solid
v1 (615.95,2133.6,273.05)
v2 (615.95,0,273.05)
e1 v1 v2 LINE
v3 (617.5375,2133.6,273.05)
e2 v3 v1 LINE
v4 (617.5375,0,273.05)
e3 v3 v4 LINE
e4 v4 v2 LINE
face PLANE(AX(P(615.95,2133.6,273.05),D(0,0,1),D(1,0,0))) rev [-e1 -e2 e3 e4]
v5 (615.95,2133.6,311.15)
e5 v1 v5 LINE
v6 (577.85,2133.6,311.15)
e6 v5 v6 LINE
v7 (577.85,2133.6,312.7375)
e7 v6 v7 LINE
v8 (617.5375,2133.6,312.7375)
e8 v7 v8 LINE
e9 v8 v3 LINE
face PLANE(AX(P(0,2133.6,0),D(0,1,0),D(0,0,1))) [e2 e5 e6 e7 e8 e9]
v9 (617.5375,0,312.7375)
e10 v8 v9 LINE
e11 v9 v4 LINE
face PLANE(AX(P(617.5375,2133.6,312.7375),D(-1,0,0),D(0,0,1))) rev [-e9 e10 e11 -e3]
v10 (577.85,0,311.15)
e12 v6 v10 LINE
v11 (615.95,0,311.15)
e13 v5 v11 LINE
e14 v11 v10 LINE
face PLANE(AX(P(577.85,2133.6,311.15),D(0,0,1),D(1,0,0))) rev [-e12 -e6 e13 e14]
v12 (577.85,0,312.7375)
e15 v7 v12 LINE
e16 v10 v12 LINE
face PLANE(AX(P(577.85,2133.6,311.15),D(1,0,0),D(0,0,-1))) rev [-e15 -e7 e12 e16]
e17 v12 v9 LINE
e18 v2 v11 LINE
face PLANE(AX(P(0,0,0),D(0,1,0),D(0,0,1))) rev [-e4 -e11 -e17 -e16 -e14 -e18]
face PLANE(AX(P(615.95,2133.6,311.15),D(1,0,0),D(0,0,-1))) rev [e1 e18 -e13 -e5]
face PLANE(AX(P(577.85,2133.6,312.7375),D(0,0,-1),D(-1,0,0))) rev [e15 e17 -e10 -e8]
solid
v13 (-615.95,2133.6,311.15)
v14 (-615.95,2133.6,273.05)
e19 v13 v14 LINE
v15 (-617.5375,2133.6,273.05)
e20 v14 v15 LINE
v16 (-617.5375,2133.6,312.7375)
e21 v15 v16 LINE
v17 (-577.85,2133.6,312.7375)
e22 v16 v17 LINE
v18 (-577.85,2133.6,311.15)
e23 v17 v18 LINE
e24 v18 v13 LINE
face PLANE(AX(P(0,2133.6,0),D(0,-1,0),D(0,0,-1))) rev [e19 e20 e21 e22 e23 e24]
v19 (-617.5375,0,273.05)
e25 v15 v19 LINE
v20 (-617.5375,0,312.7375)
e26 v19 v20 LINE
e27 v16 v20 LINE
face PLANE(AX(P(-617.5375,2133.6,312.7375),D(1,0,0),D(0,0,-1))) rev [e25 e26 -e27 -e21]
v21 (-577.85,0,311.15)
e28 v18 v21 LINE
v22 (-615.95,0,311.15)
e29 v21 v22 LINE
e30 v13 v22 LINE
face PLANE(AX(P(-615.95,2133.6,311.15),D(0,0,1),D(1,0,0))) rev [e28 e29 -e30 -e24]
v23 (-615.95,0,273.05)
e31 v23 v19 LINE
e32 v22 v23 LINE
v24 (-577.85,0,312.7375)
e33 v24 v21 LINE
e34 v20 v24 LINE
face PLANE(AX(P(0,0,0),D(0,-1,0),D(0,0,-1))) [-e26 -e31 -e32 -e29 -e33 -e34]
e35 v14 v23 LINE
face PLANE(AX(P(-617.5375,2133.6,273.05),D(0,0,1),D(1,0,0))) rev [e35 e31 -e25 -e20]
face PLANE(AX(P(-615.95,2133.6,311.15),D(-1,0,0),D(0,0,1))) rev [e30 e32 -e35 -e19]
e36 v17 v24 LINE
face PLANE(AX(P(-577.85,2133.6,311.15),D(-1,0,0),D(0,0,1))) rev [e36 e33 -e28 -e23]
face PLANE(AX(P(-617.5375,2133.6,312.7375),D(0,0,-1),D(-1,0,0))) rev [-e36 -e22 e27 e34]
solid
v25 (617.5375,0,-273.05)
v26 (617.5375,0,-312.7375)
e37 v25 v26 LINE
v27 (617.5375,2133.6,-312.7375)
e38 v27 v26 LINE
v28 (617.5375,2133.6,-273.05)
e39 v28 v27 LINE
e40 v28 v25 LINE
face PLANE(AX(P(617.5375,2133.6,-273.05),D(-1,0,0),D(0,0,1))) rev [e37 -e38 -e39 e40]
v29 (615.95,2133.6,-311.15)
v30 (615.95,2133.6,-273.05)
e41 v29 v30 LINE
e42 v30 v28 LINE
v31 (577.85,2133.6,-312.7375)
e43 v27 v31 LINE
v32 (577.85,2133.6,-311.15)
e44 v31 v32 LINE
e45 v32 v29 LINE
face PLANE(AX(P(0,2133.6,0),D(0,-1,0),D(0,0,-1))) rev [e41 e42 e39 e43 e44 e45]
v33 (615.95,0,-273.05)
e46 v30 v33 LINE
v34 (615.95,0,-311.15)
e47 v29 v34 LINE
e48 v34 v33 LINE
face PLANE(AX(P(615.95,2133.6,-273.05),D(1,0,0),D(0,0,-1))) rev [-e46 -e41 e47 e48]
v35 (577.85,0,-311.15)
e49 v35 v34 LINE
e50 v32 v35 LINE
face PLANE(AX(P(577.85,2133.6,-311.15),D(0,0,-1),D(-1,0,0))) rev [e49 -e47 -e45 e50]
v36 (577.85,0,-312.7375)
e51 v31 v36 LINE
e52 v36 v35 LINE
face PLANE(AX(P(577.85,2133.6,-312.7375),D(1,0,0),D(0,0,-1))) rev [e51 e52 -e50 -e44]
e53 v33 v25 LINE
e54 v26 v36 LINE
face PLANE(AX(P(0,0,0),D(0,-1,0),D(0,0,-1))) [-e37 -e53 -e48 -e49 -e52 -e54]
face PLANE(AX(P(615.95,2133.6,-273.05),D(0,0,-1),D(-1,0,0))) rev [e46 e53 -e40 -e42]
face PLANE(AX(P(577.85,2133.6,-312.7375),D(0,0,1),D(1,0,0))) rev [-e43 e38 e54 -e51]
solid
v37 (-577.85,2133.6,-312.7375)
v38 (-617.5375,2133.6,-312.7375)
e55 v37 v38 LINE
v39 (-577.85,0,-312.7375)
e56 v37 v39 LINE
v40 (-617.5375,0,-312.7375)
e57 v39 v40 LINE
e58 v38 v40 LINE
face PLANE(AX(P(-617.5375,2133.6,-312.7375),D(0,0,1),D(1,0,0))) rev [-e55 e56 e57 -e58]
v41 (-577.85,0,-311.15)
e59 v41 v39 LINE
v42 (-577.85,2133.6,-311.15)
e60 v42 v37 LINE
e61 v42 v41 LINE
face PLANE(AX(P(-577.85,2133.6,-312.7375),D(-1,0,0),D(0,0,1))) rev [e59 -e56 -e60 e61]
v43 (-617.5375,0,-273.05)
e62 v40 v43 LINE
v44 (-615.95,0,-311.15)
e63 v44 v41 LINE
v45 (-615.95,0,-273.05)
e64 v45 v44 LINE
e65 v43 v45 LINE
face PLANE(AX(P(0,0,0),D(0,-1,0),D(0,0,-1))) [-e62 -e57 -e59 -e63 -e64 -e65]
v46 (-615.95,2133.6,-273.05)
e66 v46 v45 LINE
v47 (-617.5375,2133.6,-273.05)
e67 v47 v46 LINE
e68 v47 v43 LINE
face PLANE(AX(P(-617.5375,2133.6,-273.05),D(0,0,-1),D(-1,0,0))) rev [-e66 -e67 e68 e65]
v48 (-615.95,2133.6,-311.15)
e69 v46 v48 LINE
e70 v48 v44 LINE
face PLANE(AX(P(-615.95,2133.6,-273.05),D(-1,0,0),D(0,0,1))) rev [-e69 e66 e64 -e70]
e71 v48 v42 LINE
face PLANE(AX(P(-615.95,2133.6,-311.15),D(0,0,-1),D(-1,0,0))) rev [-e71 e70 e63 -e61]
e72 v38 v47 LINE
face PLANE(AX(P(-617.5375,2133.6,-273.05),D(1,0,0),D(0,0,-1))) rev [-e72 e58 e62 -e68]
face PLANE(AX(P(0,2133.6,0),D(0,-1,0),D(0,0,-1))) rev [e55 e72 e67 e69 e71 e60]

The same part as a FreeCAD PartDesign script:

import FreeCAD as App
import Part
import Sketcher

V = App.Vector
Q = App.Units.Quantity

doc = App.newDocument("Part")
body = doc.addObject("PartDesign::Body", "Body")

sketch1 = doc.addObject("Sketcher::SketchObject", "Sketch")
body.addObject(sketch1)
sketch1.AttachmentSupport = (doc.XZ_Plane, [""])
sketch1.MapMode = "FlatFace"
sketch1.addGeometry([
    Part.LineSegment(V(-617.5375, 312.7375, 0), V(-577.85, 312.7375, 0)),
    Part.LineSegment(V(-577.85, 312.7375, 0), V(-577.85, 311.15, 0)),
    Part.LineSegment(V(-577.85, 311.15, 0), V(-615.95, 311.15, 0)),
    Part.LineSegment(V(-615.95, 311.15, 0), V(-615.95, 273.05, 0)),
    Part.LineSegment(V(-615.95, 273.05, 0), V(-617.5375, 273.05, 0)),
    Part.LineSegment(V(-617.5375, 273.05, 0), V(-617.5375, 312.7375, 0)),
], False)
sketch1.addConstraint([
    Sketcher.Constraint("Coincident", 0, 2, 1, 1),
    Sketcher.Constraint("Coincident", 1, 2, 2, 1),
    Sketcher.Constraint("Coincident", 2, 2, 3, 1),
    Sketcher.Constraint("Coincident", 3, 2, 4, 1),
    Sketcher.Constraint("Coincident", 4, 2, 5, 1),
    Sketcher.Constraint("Coincident", 5, 2, 0, 1),
    Sketcher.Constraint("Horizontal", 0),
    Sketcher.Constraint("Vertical", 1),
    Sketcher.Constraint("Horizontal", 2),
    Sketcher.Constraint("Vertical", 3),
    Sketcher.Constraint("Horizontal", 4),
    Sketcher.Constraint("Vertical", 5),
    Sketcher.Constraint("Equal", 4, 1),
    Sketcher.Constraint("Equal", 2, 3),
    Sketcher.Constraint("DistanceX", 2, 2, 2, 1, Q("1.5 in")),
    Sketcher.Constraint("DistanceX", 0, 1, 0, 2, Q("1.5625 in")),
    Sketcher.Constraint("DistanceX", 0, 2, -1, 1, Q("22.75 in")),
    Sketcher.Constraint("DistanceY", -1, 1, 1, 2, Q("12.25 in")),
])
pad1 = doc.addObject("PartDesign::Pad", "Pad")
body.addObject(pad1)
pad1.Profile = sketch1
pad1.Length = Q("84 in")
pad1.Reversed = True
body2 = doc.addObject("PartDesign::Body", "Body001")

sketch2 = doc.addObject("Sketcher::SketchObject", "Sketch001")
body2.addObject(sketch2)
sketch2.AttachmentSupport = (doc.getObject("XZ_Plane001"), [""])
sketch2.MapMode = "FlatFace"
sketch2.addGeometry([
    Part.LineSegment(V(-577.85, -312.7375, 0), V(-617.5375, -312.7375, 0)),
    Part.LineSegment(V(-617.5375, -312.7375, 0), V(-617.5375, -273.05, 0)),
    Part.LineSegment(V(-617.5375, -273.05, 0), V(-615.95, -273.05, 0)),
    Part.LineSegment(V(-615.95, -273.05, 0), V(-615.95, -311.15, 0)),
    Part.LineSegment(V(-615.95, -311.15, 0), V(-577.85, -311.15, 0)),
    Part.LineSegment(V(-577.85, -311.15, 0), V(-577.85, -312.7375, 0)),
], False)
sketch2.addConstraint([
    Sketcher.Constraint("Coincident", 0, 2, 1, 1),
    Sketcher.Constraint("Coincident", 1, 2, 2, 1),
    Sketcher.Constraint("Coincident", 2, 2, 3, 1),
    Sketcher.Constraint("Coincident", 3, 2, 4, 1),
    Sketcher.Constraint("Coincident", 4, 2, 5, 1),
    Sketcher.Constraint("Coincident", 5, 2, 0, 1),
    Sketcher.Constraint("Horizontal", 0),
    Sketcher.Constraint("Vertical", 1),
    Sketcher.Constraint("Horizontal", 2),
    Sketcher.Constraint("Vertical", 3),
    Sketcher.Constraint("Horizontal", 4),
    Sketcher.Constraint("Vertical", 5),
    Sketcher.Constraint("Equal", 0, 1),
    Sketcher.Constraint("Equal", 4, 3),
    Sketcher.Constraint("DistanceX", 4, 1, 4, 2, Q("1.5 in")),
    Sketcher.Constraint("DistanceX", 0, 2, 0, 1, Q("1.5625 in")),
    Sketcher.Constraint("DistanceY", 1, 2, -1, 1, Q("10.75 in")),
    Sketcher.Constraint("DistanceX", 2, 2, -1, 1, Q("24.25 in")),
])
pad2 = doc.addObject("PartDesign::Pad", "Pad001")
body2.addObject(pad2)
pad2.Profile = sketch2
pad2.Length = Q("84 in")
pad2.Reversed = True
body3 = doc.addObject("PartDesign::Body", "Body002")

sketch3 = doc.addObject("Sketcher::SketchObject", "Sketch002")
body3.addObject(sketch3)
sketch3.AttachmentSupport = (doc.getObject("XZ_Plane002"), [""])
sketch3.MapMode = "FlatFace"
sketch3.addGeometry([
    Part.LineSegment(V(617.5375, 312.7375, 0), V(617.5375, 273.05, 0)),
    Part.LineSegment(V(617.5375, 273.05, 0), V(615.95, 273.05, 0)),
    Part.LineSegment(V(615.95, 273.05, 0), V(615.95, 311.15, 0)),
    Part.LineSegment(V(615.95, 311.15, 0), V(577.85, 311.15, 0)),
    Part.LineSegment(V(577.85, 311.15, 0), V(577.85, 312.7375, 0)),
    Part.LineSegment(V(577.85, 312.7375, 0), V(617.5375, 312.7375, 0)),
], False)
sketch3.addConstraint([
    Sketcher.Constraint("Coincident", 0, 2, 1, 1),
    Sketcher.Constraint("Coincident", 1, 2, 2, 1),
    Sketcher.Constraint("Coincident", 2, 2, 3, 1),
    Sketcher.Constraint("Coincident", 3, 2, 4, 1),
    Sketcher.Constraint("Coincident", 4, 2, 5, 1),
    Sketcher.Constraint("Coincident", 5, 2, 0, 1),
    Sketcher.Constraint("Vertical", 0),
    Sketcher.Constraint("Horizontal", 1),
    Sketcher.Constraint("Vertical", 2),
    Sketcher.Constraint("Horizontal", 3),
    Sketcher.Constraint("Vertical", 4),
    Sketcher.Constraint("Horizontal", 5),
    Sketcher.Constraint("Equal", 5, 0),
    Sketcher.Constraint("Equal", 3, 2),
    Sketcher.Constraint("DistanceX", 3, 2, 3, 1, Q("1.5 in")),
    Sketcher.Constraint("DistanceX", 1, 2, 1, 1, Q("0.0625 in")),
    Sketcher.Constraint("DistanceY", -1, 1, 0, 2, Q("10.75 in")),
    Sketcher.Constraint("DistanceX", -1, 1, 1, 2, Q("24.25 in")),
])
pad3 = doc.addObject("PartDesign::Pad", "Pad002")
body3.addObject(pad3)
pad3.Profile = sketch3
pad3.Length = Q("84 in")
pad3.Reversed = True
body4 = doc.addObject("PartDesign::Body", "Body003")

sketch4 = doc.addObject("Sketcher::SketchObject", "Sketch003")
body4.addObject(sketch4)
sketch4.AttachmentSupport = (doc.getObject("XZ_Plane003"), [""])
sketch4.MapMode = "FlatFace"
sketch4.addGeometry([
    Part.LineSegment(V(577.85, -312.7375, 0), V(577.85, -311.15, 0)),
    Part.LineSegment(V(577.85, -311.15, 0), V(615.95, -311.15, 0)),
    Part.LineSegment(V(615.95, -311.15, 0), V(615.95, -273.05, 0)),
    Part.LineSegment(V(615.95, -273.05, 0), V(617.5375, -273.05, 0)),
    Part.LineSegment(V(617.5375, -273.05, 0), V(617.5375, -312.7375, 0)),
    Part.LineSegment(V(617.5375, -312.7375, 0), V(577.85, -312.7375, 0)),
], False)
sketch4.addConstraint([
    Sketcher.Constraint("Coincident", 0, 2, 1, 1),
    Sketcher.Constraint("Coincident", 1, 2, 2, 1),
    Sketcher.Constraint("Coincident", 2, 2, 3, 1),
    Sketcher.Constraint("Coincident", 3, 2, 4, 1),
    Sketcher.Constraint("Coincident", 4, 2, 5, 1),
    Sketcher.Constraint("Coincident", 5, 2, 0, 1),
    Sketcher.Constraint("Vertical", 0),
    Sketcher.Constraint("Horizontal", 1),
    Sketcher.Constraint("Vertical", 2),
    Sketcher.Constraint("Horizontal", 3),
    Sketcher.Constraint("Vertical", 4),
    Sketcher.Constraint("Horizontal", 5),
    Sketcher.Constraint("Equal", 3, 0),
    Sketcher.Constraint("Equal", 1, 2),
    Sketcher.Constraint("DistanceX", 1, 1, 1, 2, Q("1.5 in")),
    Sketcher.Constraint("DistanceX", 3, 1, 3, 2, Q("0.0625 in")),
    Sketcher.Constraint("DistanceX", -1, 1, 0, 2, Q("22.75 in")),
    Sketcher.Constraint("DistanceY", 0, 2, -1, 1, Q("12.25 in")),
])
pad4 = doc.addObject("PartDesign::Pad", "Pad003")
body4.addObject(pad4)
pad4.Profile = sketch4
pad4.Length = Q("84 in")
pad4.Reversed = True

doc.recompute()
